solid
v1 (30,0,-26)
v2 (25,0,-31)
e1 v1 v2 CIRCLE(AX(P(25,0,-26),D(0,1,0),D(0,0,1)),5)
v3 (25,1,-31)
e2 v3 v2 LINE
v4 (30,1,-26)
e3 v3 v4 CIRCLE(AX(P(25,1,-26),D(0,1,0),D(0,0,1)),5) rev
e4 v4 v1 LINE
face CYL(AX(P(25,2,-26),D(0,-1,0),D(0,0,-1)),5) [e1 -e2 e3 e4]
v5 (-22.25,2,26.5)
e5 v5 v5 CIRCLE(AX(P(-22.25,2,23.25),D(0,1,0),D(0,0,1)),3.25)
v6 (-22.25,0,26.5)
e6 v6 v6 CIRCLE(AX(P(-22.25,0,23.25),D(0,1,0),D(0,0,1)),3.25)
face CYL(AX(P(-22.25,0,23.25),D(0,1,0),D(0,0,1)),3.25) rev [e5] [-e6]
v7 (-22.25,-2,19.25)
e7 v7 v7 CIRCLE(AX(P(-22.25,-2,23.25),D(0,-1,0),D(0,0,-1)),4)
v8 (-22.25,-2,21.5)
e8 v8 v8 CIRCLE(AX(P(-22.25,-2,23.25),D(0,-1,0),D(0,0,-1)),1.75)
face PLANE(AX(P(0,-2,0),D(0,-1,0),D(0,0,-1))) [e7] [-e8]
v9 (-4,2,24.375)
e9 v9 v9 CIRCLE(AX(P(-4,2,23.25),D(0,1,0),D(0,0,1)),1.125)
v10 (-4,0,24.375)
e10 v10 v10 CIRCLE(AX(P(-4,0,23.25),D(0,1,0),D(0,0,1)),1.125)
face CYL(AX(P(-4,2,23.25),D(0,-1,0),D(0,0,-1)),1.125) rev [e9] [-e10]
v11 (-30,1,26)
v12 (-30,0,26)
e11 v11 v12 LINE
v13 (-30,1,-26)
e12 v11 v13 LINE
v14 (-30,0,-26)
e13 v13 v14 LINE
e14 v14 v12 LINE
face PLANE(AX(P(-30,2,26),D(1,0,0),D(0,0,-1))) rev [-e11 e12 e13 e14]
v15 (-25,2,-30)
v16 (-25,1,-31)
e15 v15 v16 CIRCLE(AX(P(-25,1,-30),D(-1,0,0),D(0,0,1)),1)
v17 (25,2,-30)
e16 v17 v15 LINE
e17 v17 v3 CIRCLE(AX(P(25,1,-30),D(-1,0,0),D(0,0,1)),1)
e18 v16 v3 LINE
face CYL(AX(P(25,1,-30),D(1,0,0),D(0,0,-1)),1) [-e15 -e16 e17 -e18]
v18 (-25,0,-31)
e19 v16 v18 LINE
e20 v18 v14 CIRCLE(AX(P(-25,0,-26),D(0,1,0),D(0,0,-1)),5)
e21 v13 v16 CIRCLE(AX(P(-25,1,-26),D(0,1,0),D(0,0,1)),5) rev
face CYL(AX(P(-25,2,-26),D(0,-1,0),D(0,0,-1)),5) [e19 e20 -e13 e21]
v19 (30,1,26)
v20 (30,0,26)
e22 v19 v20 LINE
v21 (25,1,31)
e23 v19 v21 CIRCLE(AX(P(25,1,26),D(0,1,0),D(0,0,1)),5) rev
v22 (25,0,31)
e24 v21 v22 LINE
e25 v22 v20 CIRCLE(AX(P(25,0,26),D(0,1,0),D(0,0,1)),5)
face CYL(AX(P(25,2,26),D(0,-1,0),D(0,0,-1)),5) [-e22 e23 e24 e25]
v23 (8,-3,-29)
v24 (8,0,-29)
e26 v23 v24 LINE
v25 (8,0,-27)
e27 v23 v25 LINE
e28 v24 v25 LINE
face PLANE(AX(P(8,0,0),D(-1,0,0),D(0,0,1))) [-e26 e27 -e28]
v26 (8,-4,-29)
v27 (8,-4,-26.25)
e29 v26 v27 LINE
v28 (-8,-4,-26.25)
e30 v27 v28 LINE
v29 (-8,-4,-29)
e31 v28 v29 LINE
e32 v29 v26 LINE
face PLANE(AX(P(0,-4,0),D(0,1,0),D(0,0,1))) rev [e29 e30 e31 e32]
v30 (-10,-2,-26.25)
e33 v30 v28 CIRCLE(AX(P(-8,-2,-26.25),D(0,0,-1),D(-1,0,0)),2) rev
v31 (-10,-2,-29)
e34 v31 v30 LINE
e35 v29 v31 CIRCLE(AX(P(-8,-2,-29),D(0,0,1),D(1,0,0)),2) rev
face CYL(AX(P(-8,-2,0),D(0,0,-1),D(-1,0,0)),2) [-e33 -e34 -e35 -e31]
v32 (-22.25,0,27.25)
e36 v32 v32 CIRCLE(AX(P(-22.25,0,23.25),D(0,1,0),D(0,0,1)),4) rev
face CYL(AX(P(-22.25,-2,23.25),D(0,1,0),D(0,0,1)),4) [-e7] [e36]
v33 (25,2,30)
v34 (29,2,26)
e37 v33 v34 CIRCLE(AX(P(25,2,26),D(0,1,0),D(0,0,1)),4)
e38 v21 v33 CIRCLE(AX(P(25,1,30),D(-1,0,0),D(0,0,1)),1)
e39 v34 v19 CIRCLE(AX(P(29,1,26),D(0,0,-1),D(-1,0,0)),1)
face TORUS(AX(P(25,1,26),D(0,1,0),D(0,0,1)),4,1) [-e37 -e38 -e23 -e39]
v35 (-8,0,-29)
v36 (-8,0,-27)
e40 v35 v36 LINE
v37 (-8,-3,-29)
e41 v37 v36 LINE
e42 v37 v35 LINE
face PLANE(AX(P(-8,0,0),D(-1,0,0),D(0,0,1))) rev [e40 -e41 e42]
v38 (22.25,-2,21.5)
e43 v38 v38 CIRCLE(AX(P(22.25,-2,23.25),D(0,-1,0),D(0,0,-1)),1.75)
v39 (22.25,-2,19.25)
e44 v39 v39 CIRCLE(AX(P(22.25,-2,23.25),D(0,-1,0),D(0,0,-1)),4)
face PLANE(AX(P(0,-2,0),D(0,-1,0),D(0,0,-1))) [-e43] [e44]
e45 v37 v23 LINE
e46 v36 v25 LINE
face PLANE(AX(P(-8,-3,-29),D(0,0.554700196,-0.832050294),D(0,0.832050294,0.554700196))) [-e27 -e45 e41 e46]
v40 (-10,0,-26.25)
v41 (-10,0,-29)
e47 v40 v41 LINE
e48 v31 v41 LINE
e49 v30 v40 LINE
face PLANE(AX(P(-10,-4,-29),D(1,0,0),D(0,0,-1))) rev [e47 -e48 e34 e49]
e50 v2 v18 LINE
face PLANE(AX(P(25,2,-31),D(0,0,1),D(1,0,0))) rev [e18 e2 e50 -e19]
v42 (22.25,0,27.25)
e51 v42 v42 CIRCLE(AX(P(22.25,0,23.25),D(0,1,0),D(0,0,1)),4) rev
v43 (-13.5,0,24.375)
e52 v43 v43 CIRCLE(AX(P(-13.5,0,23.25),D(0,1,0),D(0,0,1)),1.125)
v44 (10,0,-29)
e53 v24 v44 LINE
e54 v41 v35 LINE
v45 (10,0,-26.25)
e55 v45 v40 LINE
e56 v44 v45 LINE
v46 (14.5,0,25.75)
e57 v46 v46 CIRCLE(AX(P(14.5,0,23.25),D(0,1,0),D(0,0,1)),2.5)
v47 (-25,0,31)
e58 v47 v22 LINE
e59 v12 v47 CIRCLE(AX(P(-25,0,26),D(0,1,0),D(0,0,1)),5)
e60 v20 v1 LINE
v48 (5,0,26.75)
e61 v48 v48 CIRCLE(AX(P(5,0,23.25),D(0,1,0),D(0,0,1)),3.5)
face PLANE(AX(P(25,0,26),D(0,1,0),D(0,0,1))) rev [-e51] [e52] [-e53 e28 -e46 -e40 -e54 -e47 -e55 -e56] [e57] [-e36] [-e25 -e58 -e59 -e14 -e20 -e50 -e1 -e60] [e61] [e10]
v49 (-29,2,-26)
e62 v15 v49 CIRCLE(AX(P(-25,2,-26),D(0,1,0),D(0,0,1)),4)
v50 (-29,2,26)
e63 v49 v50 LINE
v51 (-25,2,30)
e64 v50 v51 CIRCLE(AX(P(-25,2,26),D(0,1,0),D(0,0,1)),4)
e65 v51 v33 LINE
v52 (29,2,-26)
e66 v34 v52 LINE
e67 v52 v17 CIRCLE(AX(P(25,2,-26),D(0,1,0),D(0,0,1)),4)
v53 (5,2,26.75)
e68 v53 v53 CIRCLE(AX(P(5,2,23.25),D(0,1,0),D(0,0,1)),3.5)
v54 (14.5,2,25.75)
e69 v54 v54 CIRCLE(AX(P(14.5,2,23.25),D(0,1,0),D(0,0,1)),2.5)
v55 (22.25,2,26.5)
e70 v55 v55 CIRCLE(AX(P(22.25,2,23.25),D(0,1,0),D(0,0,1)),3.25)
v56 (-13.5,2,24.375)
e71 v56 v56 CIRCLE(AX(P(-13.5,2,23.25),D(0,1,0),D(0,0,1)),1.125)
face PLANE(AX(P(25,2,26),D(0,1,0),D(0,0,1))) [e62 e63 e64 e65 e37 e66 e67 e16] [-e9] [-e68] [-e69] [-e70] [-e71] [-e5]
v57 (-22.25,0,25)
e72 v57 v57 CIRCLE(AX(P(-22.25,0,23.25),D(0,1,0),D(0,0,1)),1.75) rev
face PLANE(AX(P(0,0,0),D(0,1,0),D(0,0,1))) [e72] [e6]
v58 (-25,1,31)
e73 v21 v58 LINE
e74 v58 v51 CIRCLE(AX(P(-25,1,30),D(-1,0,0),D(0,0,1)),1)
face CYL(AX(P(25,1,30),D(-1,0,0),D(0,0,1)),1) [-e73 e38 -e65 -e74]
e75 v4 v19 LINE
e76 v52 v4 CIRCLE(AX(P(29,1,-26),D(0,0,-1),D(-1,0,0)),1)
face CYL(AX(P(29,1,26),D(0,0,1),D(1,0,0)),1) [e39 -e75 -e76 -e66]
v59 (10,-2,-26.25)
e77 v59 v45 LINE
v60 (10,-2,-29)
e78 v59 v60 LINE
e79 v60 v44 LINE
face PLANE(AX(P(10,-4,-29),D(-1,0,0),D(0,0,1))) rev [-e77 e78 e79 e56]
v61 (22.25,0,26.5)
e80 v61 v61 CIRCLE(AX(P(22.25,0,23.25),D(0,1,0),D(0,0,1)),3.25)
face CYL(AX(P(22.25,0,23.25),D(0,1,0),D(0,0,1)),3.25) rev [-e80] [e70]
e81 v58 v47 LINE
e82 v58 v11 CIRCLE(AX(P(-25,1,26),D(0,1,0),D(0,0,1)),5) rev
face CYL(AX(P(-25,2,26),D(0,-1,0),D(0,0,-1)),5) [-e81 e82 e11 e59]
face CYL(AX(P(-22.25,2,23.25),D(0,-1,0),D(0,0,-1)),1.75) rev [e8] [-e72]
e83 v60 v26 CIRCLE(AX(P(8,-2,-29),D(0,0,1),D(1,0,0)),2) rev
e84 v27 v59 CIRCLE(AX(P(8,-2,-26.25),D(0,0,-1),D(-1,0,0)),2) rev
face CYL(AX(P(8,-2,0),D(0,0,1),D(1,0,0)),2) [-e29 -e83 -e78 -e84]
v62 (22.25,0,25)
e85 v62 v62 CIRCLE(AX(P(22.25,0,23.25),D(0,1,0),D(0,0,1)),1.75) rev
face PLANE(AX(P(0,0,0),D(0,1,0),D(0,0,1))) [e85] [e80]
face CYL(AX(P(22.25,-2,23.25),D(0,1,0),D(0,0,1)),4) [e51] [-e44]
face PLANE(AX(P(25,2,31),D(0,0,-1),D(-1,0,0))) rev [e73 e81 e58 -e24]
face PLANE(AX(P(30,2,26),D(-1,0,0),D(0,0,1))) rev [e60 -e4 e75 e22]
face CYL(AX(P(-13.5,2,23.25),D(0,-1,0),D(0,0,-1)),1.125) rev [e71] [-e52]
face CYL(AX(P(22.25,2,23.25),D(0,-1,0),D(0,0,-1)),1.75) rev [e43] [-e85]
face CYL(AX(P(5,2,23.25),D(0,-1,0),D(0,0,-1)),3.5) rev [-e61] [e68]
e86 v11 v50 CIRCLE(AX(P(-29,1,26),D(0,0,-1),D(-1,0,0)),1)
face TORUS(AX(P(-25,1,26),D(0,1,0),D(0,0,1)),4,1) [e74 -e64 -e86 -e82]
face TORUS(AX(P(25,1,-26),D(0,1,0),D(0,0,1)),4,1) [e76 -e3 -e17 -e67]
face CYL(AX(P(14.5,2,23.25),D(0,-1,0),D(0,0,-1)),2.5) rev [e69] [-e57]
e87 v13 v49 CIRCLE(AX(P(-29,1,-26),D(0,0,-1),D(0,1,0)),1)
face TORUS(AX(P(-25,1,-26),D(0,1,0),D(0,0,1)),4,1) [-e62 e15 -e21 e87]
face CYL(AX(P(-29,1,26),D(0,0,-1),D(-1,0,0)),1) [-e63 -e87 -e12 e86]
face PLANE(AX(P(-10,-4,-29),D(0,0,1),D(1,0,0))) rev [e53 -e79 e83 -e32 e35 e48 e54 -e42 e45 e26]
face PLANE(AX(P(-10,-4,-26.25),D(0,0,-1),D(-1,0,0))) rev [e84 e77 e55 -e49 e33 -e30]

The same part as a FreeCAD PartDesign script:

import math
import FreeCAD as App
import Part
import Sketcher
from FreeCAD import Vector


def edges_at(feature, points):
    """Names of the edges that pass closest to the given points."""
    edges = feature.Shape.Edges
    near = lambda p: min(range(len(edges)), key=lambda i: edges[i].distToShape(Part.Vertex(*p))[0])
    return sorted({f"Edge{near(p) + 1}" for p in points})


def add_polygon(sketch, points):
    """Adds a closed chain of lines whose ends are joined by coincident constraints."""
    first, n = sketch.GeometryCount, len(points)
    for a, b in zip(points, points[1:] + points[:1]):
        sketch.addGeometry(Part.LineSegment(App.Vector(*a, 0), App.Vector(*b, 0)), False)
    for i in range(n):
        sketch.addConstraint(Sketcher.Constraint("Coincident", first + i, 2, first + (i + 1) % n, 1))

doc = App.newDocument("Part")
params = doc.addObject("Spreadsheet::Sheet", "Params")
for row, (alias, value) in enumerate([
    ("sketch1_diameter", "5 mm"),
    ("sketch1_diameter2", "7 mm"),
    ("sketch1_radius", "5 mm"),
    ("sketch1_diameter3", "2.25 mm"),
    ("sketch1_width", "50 mm"),
    ("pad1_length", "2 mm"),
    ("sketch2_diameter", "8 mm"),
    ("pad2_length", "2 mm"),
    ("sketch3_diameter", "3.5 mm"),
    ("sketch4_diameter", "6.5 mm"),
    ("sketch4_diameter2", "3.5 mm"),
    ("pocket2_length", "2 mm"),
    ("sketch5_width", "20 mm"),
    ("sketch5_height", "2.75 mm"),
    ("pad3_length", "4 mm"),
    ("sketch6_width", "3 mm"),
    ("sketch6_height", "2 mm"),
    ("pocket3_length", "16 mm"),
    ("fillet_radius", "2 mm"),
    ("fillet2_radius", "1 mm"),
], start=1):
    params.set(f"A{row}", alias)
    params.set(f"B{row}", "=" + value)
    params.setAlias(f"B{row}", alias)

body = doc.addObject("PartDesign::Body", "Body")

sketch1 = body.newObject("Sketcher::SketchObject", "Sketch")
sketch1.AttachmentSupport = (doc.getObject("XZ_Plane"), [""])
sketch1.MapMode = "FlatFace"
sketch1.addGeometry(Part.LineSegment(Vector(-25, 31, 0), Vector(25, 31, 0)), False)
sketch1.addGeometry(Part.ArcOfCircle(Part.Circle(Vector(25, 26, 0), Vector(0, 0, 1), 5), math.radians(0), math.radians(90)), False)
sketch1.addGeometry(Part.LineSegment(Vector(30, 26, 0), Vector(30, -26, 0)), False)
sketch1.addGeometry(Part.ArcOfCircle(Part.Circle(Vector(25, -26, 0), Vector(0, 0, 1), 5), math.radians(-90), math.radians(0)), False)
sketch1.addGeometry(Part.LineSegment(Vector(25, -31, 0), Vector(-25, -31, 0)), False)
sketch1.addGeometry(Part.ArcOfCircle(Part.Circle(Vector(-25, -26, 0), Vector(0, 0, 1), 5), math.radians(180), math.radians(270)), False)
sketch1.addGeometry(Part.LineSegment(Vector(-30, -26, 0), Vector(-30, 26, 0)), False)
sketch1.addGeometry(Part.ArcOfCircle(Part.Circle(Vector(-25, 26, 0), Vector(0, 0, 1), 5), math.radians(90), math.radians(180)), False)
sketch1.addGeometry(Part.Circle(Vector(14.5, 23.2, 0), Vector(0, 0, 1), 2.5), False)
sketch1.addGeometry(Part.Circle(Vector(5, 23.2, 0), Vector(0, 0, 1), 3.5), False)
sketch1.addGeometry(Part.Circle(Vector(-4, 23.2, 0), Vector(0, 0, 1), 1.1), False)
sketch1.addGeometry(Part.Circle(Vector(-13.5, 23.2, 0), Vector(0, 0, 1), 1.1), False)
sketch1.addConstraint(Sketcher.Constraint("Tangent", 0, 2, 1, 2))
sketch1.addConstraint(Sketcher.Constraint("Tangent", 1, 1, 2, 1))
sketch1.addConstraint(Sketcher.Constraint("Tangent", 2, 2, 3, 2))
sketch1.addConstraint(Sketcher.Constraint("Tangent", 3, 1, 4, 1))
sketch1.addConstraint(Sketcher.Constraint("Tangent", 4, 2, 5, 2))
sketch1.addConstraint(Sketcher.Constraint("Tangent", 5, 1, 6, 1))
sketch1.addConstraint(Sketcher.Constraint("Tangent", 6, 2, 7, 2))
sketch1.addConstraint(Sketcher.Constraint("Tangent", 7, 1, 0, 1))
sketch1.addConstraint(Sketcher.Constraint("Horizontal", 0))
sketch1.addConstraint(Sketcher.Constraint("Vertical", 2))
sketch1.addConstraint(Sketcher.Constraint("Horizontal", 4))
sketch1.addConstraint(Sketcher.Constraint("Vertical", 6))
sketch1.addConstraint(Sketcher.Constraint("Equal", 1, 3))
sketch1.addConstraint(Sketcher.Constraint("Equal", 3, 5))
sketch1.addConstraint(Sketcher.Constraint("Equal", 5, 7))
sketch1.addConstraint(Sketcher.Constraint("Equal", 10, 11))
sketch1.addConstraint(Sketcher.Constraint("Symmetric", 1, 3, 5, 3, -1, 1))
sketch1.addConstraint(Sketcher.Constraint("Horizontal", 8, 3, 9, 3))
sketch1.addConstraint(Sketcher.Constraint("Horizontal", 9, 3, 10, 3))
sketch1.addConstraint(Sketcher.Constraint("Horizontal", 10, 3, 11, 3))
sketch1.addConstraint(Sketcher.Constraint("Diameter", 8, 5.0))
sketch1.addConstraint(Sketcher.Constraint("Diameter", 9, 7.0))
sketch1.addConstraint(Sketcher.Constraint("Radius", 1, 5.0))
sketch1.addConstraint(Sketcher.Constraint("Diameter", 10, 2.25))
sketch1.addConstraint(Sketcher.Constraint("DistanceX", 0, 1, 0, 2, 50.0))
sketch1.addConstraint(Sketcher.Constraint("DistanceY", 2, 2, 2, 1, 52.0))
sketch1.addConstraint(Sketcher.Constraint("DistanceX", -1, 1, 9, 3, 5.0))
sketch1.addConstraint(Sketcher.Constraint("DistanceX", 10, 3, -1, 1, 4.0))
sketch1.addConstraint(Sketcher.Constraint("DistanceX", 11, 3, 8, 3, 28.0))
sketch1.addConstraint(Sketcher.Constraint("DistanceX", -1, 1, 8, 3, 14.5))
sketch1.addConstraint(Sketcher.Constraint("DistanceY", -1, 1, 8, 3, 23.25))
sketch1.setExpression("Constraints[20]", "Params.sketch1_diameter")
sketch1.setExpression("Constraints[21]", "Params.sketch1_diameter2")
sketch1.setExpression("Constraints[22]", "Params.sketch1_radius")
sketch1.setExpression("Constraints[23]", "Params.sketch1_diameter3")
sketch1.setExpression("Constraints[24]", "Params.sketch1_width")
pad1 = body.newObject("PartDesign::Pad", "Pad")
pad1.Profile = sketch1
pad1.setExpression("Length", "Params.pad1_length")
pad1.Reversed = True

sketch2 = body.newObject("Sketcher::SketchObject", "Sketch001")
sketch2.AttachmentSupport = (doc.getObject("XZ_Plane"), [""])
sketch2.MapMode = "FlatFace"
sketch2.addGeometry(Part.Circle(Vector(-22.2, 23.2, 0), Vector(0, 0, 1), 4), False)
sketch2.addGeometry(Part.Circle(Vector(22.2, 23.2, 0), Vector(0, 0, 1), 4), False)
sketch2.addConstraint(Sketcher.Constraint("Equal", 0, 1))
sketch2.addConstraint(Sketcher.Constraint("Symmetric", 0, 3, 1, 3, -2))
sketch2.addConstraint(Sketcher.Constraint("Diameter", 0, 8.0))
sketch2.addConstraint(Sketcher.Constraint("DistanceX", 0, 3, 1, 3, 44.5))
sketch2.addConstraint(Sketcher.Constraint("DistanceY", -1, 1, 0, 3, 23.25))
sketch2.setExpression("Constraints[2]", "Params.sketch2_diameter")
pad2 = body.newObject("PartDesign::Pad", "Pad001")
pad2.Profile = sketch2
pad2.setExpression("Length", "Params.pad2_length")

sketch3 = body.newObject("Sketcher::SketchObject", "Sketch002")
sketch3.AttachmentSupport = (doc.getObject("XZ_Plane"), [""])
sketch3.MapMode = "FlatFace"
sketch3.AttachmentOffset = App.Placement(Vector(0, 0, 2), App.Rotation())
sketch3.addGeometry(Part.Circle(Vector(-22.2, 23.2, 0), Vector(0, 0, 1), 1.8), False)
sketch3.addGeometry(Part.Circle(Vector(22.2, 23.2, 0), Vector(0, 0, 1), 1.8), False)
sketch3.addConstraint(Sketcher.Constraint("Equal", 0, 1))
sketch3.addConstraint(Sketcher.Constraint("Symmetric", 0, 3, 1, 3, -2))
sketch3.addConstraint(Sketcher.Constraint("Diameter", 0, 3.5))
sketch3.addConstraint(Sketcher.Constraint("DistanceX", 0, 3, 1, 3, 44.5))
sketch3.addConstraint(Sketcher.Constraint("DistanceY", -1, 1, 0, 3, 23.25))
sketch3.setExpression("Constraints[2]", "Params.sketch3_diameter")
pocket1 = body.newObject("PartDesign::Pocket", "Pocket")
pocket1.Profile = sketch3
pocket1.Type = "ThroughAll"

sketch4 = body.newObject("Sketcher::SketchObject", "Sketch003")
sketch4.AttachmentSupport = (doc.getObject("XZ_Plane"), [""])
sketch4.MapMode = "FlatFace"
sketch4.AttachmentOffset = App.Placement(Vector(0, 0, -2), App.Rotation())
sketch4.addGeometry(Part.Circle(Vector(-22.2, 23.2, 0), Vector(0, 0, 1), 3.2), False)
sketch4.addGeometry(Part.Circle(Vector(-22.2, 23.2, 0), Vector(0, 0, 1), 1.8), False)
sketch4.addGeometry(Part.Circle(Vector(22.2, 23.2, 0), Vector(0, 0, 1), 3.2), False)
sketch4.addGeometry(Part.Circle(Vector(22.2, 23.2, 0), Vector(0, 0, 1), 1.8), False)
sketch4.addConstraint(Sketcher.Constraint("Coincident", 1, 3, 0, 3))
sketch4.addConstraint(Sketcher.Constraint("Coincident", 3, 3, 2, 3))
sketch4.addConstraint(Sketcher.Constraint("Equal", 0, 2))
sketch4.addConstraint(Sketcher.Constraint("Equal", 1, 3))
sketch4.addConstraint(Sketcher.Constraint("Symmetric", 0, 3, 2, 3, -2))
sketch4.addConstraint(Sketcher.Constraint("Diameter", 0, 6.5))
sketch4.addConstraint(Sketcher.Constraint("Diameter", 1, 3.5))
sketch4.addConstraint(Sketcher.Constraint("DistanceX", 0, 3, 2, 3, 44.5))
sketch4.addConstraint(Sketcher.Constraint("DistanceY", -1, 1, 0, 3, 23.25))
sketch4.setExpression("Constraints[5]", "Params.sketch4_diameter")
sketch4.setExpression("Constraints[6]", "Params.sketch4_diameter2")
pocket2 = body.newObject("PartDesign::Pocket", "Pocket001")
pocket2.Profile = sketch4
pocket2.setExpression("Length", "Params.pocket2_length")
pocket2.Reversed = True

sketch5 = body.newObject("Sketcher::SketchObject", "Sketch004")
sketch5.AttachmentSupport = (doc.getObject("XZ_Plane"), [""])
sketch5.MapMode = "FlatFace"
add_polygon(sketch5, [(-10, -26.2), (-10, -29), (10, -29), (10, -26.2)])
sketch5.addConstraint(Sketcher.Constraint("Vertical", 0))
sketch5.addConstraint(Sketcher.Constraint("Horizontal", 1))
sketch5.addConstraint(Sketcher.Constraint("Vertical", 2))
sketch5.addConstraint(Sketcher.Constraint("Horizontal", 3))
sketch5.addConstraint(Sketcher.Constraint("DistanceX", 1, 1, 1, 2, 20.0))
sketch5.addConstraint(Sketcher.Constraint("DistanceX", 0, 2, -1, 1, 10.0))
sketch5.addConstraint(Sketcher.Constraint("DistanceY", 0, 2, -1, 1, 29.0))
sketch5.addConstraint(Sketcher.Constraint("DistanceY", 0, 2, 0, 1, 2.75))
sketch5.setExpression("Constraints[8]", "Params.sketch5_width")
sketch5.setExpression("Constraints[11]", "Params.sketch5_height")
pad3 = body.newObject("PartDesign::Pad", "Pad002")
pad3.Profile = sketch5
pad3.setExpression("Length", "Params.pad3_length")

sketch6 = body.newObject("Sketcher::SketchObject", "Sketch005")
sketch6.AttachmentSupport = (doc.getObject("YZ_Plane"), [""])
sketch6.MapMode = "FlatFace"
sketch6.AttachmentOffset = App.Placement(Vector(0, 0, 8), App.Rotation())
add_polygon(sketch6, [(0, -27), (-3, -29), (0, -29)])
sketch6.addConstraint(Sketcher.Constraint("Horizontal", 1))
sketch6.addConstraint(Sketcher.Constraint("Vertical", 2))
sketch6.addConstraint(Sketcher.Constraint("PointOnObject", 1, 2, -2))
sketch6.addConstraint(Sketcher.Constraint("DistanceX", 1, 1, 1, 2, 3.0))
sketch6.addConstraint(Sketcher.Constraint("DistanceY", 2, 1, 2, 2, 2.0))
sketch6.addConstraint(Sketcher.Constraint("DistanceY", 0, 2, -1, 1, 29.0))
sketch6.setExpression("Constraints[6]", "Params.sketch6_width")
sketch6.setExpression("Constraints[7]", "Params.sketch6_height")
pocket3 = body.newObject("PartDesign::Pocket", "Pocket002")
pocket3.Profile = sketch6
pocket3.setExpression("Length", "Params.pocket3_length")
doc.recompute()

fillet = body.newObject("PartDesign::Fillet", "Fillet")
fillet.Base = (pocket3, edges_at(pocket3, [(10, -4, -27.625), (-10, -4, -27.625)]))
fillet.setExpression("Radius", "Params.fillet_radius")
doc.recompute()

fillet2 = body.newObject("PartDesign::Fillet", "Fillet001")
fillet2.Base = (fillet, edges_at(fillet, [
    (28.536, 2, -29.536),
    (0, 2, -31),
    (-28.536, 2, -29.536),
    (-30, 2, 0),
    (-28.536, 2, 29.536),
    (0, 2, 31),
    (28.536, 2, 29.536),
    (30, 2, 0),
]))
fillet2.setExpression("Radius", "Params.fillet2_radius")

doc.recompute()
